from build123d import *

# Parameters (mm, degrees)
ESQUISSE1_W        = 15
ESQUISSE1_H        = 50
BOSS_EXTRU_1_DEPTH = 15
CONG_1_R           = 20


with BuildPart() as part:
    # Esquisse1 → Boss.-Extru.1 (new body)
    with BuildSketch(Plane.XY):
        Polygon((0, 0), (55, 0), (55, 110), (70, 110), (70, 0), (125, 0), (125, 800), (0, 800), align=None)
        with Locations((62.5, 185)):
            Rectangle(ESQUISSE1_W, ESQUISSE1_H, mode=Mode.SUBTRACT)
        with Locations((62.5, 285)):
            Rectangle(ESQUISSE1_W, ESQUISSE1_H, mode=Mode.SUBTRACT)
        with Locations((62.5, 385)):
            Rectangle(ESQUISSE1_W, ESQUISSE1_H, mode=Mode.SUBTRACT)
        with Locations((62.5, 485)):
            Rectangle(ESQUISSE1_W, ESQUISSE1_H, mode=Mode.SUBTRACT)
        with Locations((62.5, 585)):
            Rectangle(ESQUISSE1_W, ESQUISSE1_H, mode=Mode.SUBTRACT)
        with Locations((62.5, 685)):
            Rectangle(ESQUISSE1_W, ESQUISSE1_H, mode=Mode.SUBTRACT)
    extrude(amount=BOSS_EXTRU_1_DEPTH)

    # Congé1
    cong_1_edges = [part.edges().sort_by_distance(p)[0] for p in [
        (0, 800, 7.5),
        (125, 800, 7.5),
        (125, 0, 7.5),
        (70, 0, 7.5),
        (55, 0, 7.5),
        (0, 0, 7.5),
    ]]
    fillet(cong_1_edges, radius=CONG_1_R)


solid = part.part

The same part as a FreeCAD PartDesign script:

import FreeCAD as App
import Part
import Sketcher

V = App.Vector
Q = App.Units.Quantity


def edges_at(feature, points):
    """Names of the edges that pass closest to the given points."""
    edges = feature.Shape.Edges
    near = lambda p: min(range(len(edges)), key=lambda i: edges[i].distToShape(Part.Vertex(*p))[0])
    return sorted({f"Edge{near(p) + 1}" for p in points})


def add_polygon(sketch, points):
    """Adds a closed chain of lines whose ends are joined by coincident constraints."""
    first, n = sketch.GeometryCount, len(points)
    for a, b in zip(points, points[1:] + points[:1]):
        sketch.addGeometry(Part.LineSegment(App.Vector(*a, 0), App.Vector(*b, 0)), False)
    for i in range(n):
        sketch.addConstraint(Sketcher.Constraint("Coincident", first + i, 2, first + (i + 1) % n, 1))

doc = App.newDocument("Part")
params = doc.addObject("Spreadsheet::Sheet", "Params")
for row, (alias, value) in enumerate([
    ("sketch1_width", "55 mm"),
    ("sketch1_width2", "15 mm"),
    ("sketch1_height", "110 mm"),
    ("sketch1_height2", "800 mm"),
    ("sketch1_height3", "50 mm"),
    ("pad1_length", "15 mm"),
    ("fillet_radius", "20 mm"),
], start=1):
    params.set(f"A{row}", alias)
    params.set(f"B{row}", "=" + value)
    params.setAlias(f"B{row}", alias)

body = doc.addObject("PartDesign::Body", "Body")

# Sketch on XY plane
sketch1 = body.newObject("Sketcher::SketchObject", "Sketch")
sketch1.AttachmentSupport = (doc.getObject("XY_Plane"), [""])
sketch1.MapMode = "FlatFace"
add_polygon(sketch1, [(0, 0), (55, 0), (55, 110), (70, 110), (70, 0), (125, 0), (125, 800), (0, 800)])  # lines 0-7
add_polygon(sketch1, [(70, 160), (55, 160), (55, 210), (70, 210)])  # lines 8-11
add_polygon(sketch1, [(70, 260), (55, 260), (55, 310), (70, 310)])  # lines 12-15
add_polygon(sketch1, [(70, 360), (55, 360), (55, 410), (70, 410)])  # lines 16-19
add_polygon(sketch1, [(70, 460), (55, 460), (55, 510), (70, 510)])  # lines 20-23
add_polygon(sketch1, [(70, 560), (55, 560), (55, 610), (70, 610)])  # lines 24-27
add_polygon(sketch1, [(70, 660), (55, 660), (55, 710), (70, 710)])  # lines 28-31
sketch1.addConstraint([
    Sketcher.Constraint("Horizontal", 0),
    Sketcher.Constraint("Vertical", 1),
    Sketcher.Constraint("Horizontal", 2),
    Sketcher.Constraint("Vertical", 3),
    Sketcher.Constraint("Horizontal", 4),
    Sketcher.Constraint("Vertical", 5),
    Sketcher.Constraint("Horizontal", 6),
    Sketcher.Constraint("Vertical", 7),
    Sketcher.Constraint("Horizontal", 8),
    Sketcher.Constraint("Vertical", 9),
    Sketcher.Constraint("Horizontal", 10),
    Sketcher.Constraint("Vertical", 11),
    Sketcher.Constraint("Horizontal", 12),
    Sketcher.Constraint("Vertical", 13),
    Sketcher.Constraint("Horizontal", 14),
    Sketcher.Constraint("Vertical", 15),
    Sketcher.Constraint("Horizontal", 16),
    Sketcher.Constraint("Vertical", 17),
    Sketcher.Constraint("Horizontal", 18),
    Sketcher.Constraint("Vertical", 19),
    Sketcher.Constraint("Horizontal", 20),
    Sketcher.Constraint("Vertical", 21),
    Sketcher.Constraint("Horizontal", 22),
    Sketcher.Constraint("Vertical", 23),
    Sketcher.Constraint("Horizontal", 24),
    Sketcher.Constraint("Vertical", 25),
    Sketcher.Constraint("Horizontal", 26),
    Sketcher.Constraint("Vertical", 27),
    Sketcher.Constraint("Horizontal", 28),
    Sketcher.Constraint("Vertical", 29),
    Sketcher.Constraint("Horizontal", 30),
    Sketcher.Constraint("Vertical", 31),
    Sketcher.Constraint("Coincident", 7, 2, -1, 1),
    Sketcher.Constraint("PointOnObject", 3, 2, -1),
    Sketcher.Constraint("Vertical", 1, 2, 8, 2),
    Sketcher.Constraint("Vertical", 3, 2, 10, 2),
    Sketcher.Constraint("Vertical", 9, 2, 12, 2),
    Sketcher.Constraint("Vertical", 11, 2, 14, 2),
    Sketcher.Constraint("Vertical", 13, 2, 16, 2),
    Sketcher.Constraint("Vertical", 15, 2, 18, 2),
    Sketcher.Constraint("Vertical", 17, 2, 20, 2),
    Sketcher.Constraint("Vertical", 19, 2, 22, 2),
    Sketcher.Constraint("Vertical", 21, 2, 24, 2),
    Sketcher.Constraint("Vertical", 23, 2, 26, 2),
    Sketcher.Constraint("Vertical", 25, 2, 28, 2),
    Sketcher.Constraint("Vertical", 27, 2, 30, 2),
    Sketcher.Constraint("Equal", 0, 4),
    Sketcher.Constraint("Equal", 11, 13),
    Sketcher.Constraint("Equal", 15, 17),
    Sketcher.Constraint("Equal", 19, 21),
    Sketcher.Constraint("Equal", 23, 25),
    Sketcher.Constraint("Equal", 27, 29),
    Sketcher.Constraint("DistanceX", 0, 1, 0, 2, Q("55 mm")),
    Sketcher.Constraint("DistanceX", 2, 1, 2, 2, Q("15 mm")),
    Sketcher.Constraint("DistanceY", 1, 1, 1, 2, Q("110 mm")),
    Sketcher.Constraint("DistanceY", 5, 1, 5, 2, Q("800 mm")),
    Sketcher.Constraint("DistanceY", 9, 1, 9, 2, Q("50 mm")),
    Sketcher.Constraint("DistanceY", -1, 1, 8, 2, Q("160 mm")),
    Sketcher.Constraint("DistanceY", -1, 1, 12, 2, Q("260 mm")),
    Sketcher.Constraint("DistanceY", -1, 1, 16, 2, Q("360 mm")),
    Sketcher.Constraint("DistanceY", -1, 1, 20, 2, Q("460 mm")),
    Sketcher.Constraint("DistanceY", -1, 1, 24, 2, Q("560 mm")),
    Sketcher.Constraint("DistanceY", -1, 1, 28, 2, Q("660 mm")),
])
sketch1.setExpression("Constraints[84]", "Params.sketch1_width")
sketch1.setExpression("Constraints[85]", "Params.sketch1_width2")
sketch1.setExpression("Constraints[86]", "Params.sketch1_height")
sketch1.setExpression("Constraints[87]", "Params.sketch1_height2")
sketch1.setExpression("Constraints[88]", "Params.sketch1_height3")
pad1 = body.newObject("PartDesign::Pad", "Pad")
pad1.Profile = sketch1
pad1.setExpression("Length", "Params.pad1_length")
doc.recompute()

fillet = body.newObject("PartDesign::Fillet", "Fillet")
fillet.Base = (pad1, edges_at(pad1, [
    (0, 800, 7.5),
    (125, 800, 7.5),
    (125, 0, 7.5),
    (70, 0, 7.5),
    (55, 0, 7.5),
    (0, 0, 7.5),
]))
fillet.setExpression("Radius", "Params.fillet_radius")

doc.recompute()
